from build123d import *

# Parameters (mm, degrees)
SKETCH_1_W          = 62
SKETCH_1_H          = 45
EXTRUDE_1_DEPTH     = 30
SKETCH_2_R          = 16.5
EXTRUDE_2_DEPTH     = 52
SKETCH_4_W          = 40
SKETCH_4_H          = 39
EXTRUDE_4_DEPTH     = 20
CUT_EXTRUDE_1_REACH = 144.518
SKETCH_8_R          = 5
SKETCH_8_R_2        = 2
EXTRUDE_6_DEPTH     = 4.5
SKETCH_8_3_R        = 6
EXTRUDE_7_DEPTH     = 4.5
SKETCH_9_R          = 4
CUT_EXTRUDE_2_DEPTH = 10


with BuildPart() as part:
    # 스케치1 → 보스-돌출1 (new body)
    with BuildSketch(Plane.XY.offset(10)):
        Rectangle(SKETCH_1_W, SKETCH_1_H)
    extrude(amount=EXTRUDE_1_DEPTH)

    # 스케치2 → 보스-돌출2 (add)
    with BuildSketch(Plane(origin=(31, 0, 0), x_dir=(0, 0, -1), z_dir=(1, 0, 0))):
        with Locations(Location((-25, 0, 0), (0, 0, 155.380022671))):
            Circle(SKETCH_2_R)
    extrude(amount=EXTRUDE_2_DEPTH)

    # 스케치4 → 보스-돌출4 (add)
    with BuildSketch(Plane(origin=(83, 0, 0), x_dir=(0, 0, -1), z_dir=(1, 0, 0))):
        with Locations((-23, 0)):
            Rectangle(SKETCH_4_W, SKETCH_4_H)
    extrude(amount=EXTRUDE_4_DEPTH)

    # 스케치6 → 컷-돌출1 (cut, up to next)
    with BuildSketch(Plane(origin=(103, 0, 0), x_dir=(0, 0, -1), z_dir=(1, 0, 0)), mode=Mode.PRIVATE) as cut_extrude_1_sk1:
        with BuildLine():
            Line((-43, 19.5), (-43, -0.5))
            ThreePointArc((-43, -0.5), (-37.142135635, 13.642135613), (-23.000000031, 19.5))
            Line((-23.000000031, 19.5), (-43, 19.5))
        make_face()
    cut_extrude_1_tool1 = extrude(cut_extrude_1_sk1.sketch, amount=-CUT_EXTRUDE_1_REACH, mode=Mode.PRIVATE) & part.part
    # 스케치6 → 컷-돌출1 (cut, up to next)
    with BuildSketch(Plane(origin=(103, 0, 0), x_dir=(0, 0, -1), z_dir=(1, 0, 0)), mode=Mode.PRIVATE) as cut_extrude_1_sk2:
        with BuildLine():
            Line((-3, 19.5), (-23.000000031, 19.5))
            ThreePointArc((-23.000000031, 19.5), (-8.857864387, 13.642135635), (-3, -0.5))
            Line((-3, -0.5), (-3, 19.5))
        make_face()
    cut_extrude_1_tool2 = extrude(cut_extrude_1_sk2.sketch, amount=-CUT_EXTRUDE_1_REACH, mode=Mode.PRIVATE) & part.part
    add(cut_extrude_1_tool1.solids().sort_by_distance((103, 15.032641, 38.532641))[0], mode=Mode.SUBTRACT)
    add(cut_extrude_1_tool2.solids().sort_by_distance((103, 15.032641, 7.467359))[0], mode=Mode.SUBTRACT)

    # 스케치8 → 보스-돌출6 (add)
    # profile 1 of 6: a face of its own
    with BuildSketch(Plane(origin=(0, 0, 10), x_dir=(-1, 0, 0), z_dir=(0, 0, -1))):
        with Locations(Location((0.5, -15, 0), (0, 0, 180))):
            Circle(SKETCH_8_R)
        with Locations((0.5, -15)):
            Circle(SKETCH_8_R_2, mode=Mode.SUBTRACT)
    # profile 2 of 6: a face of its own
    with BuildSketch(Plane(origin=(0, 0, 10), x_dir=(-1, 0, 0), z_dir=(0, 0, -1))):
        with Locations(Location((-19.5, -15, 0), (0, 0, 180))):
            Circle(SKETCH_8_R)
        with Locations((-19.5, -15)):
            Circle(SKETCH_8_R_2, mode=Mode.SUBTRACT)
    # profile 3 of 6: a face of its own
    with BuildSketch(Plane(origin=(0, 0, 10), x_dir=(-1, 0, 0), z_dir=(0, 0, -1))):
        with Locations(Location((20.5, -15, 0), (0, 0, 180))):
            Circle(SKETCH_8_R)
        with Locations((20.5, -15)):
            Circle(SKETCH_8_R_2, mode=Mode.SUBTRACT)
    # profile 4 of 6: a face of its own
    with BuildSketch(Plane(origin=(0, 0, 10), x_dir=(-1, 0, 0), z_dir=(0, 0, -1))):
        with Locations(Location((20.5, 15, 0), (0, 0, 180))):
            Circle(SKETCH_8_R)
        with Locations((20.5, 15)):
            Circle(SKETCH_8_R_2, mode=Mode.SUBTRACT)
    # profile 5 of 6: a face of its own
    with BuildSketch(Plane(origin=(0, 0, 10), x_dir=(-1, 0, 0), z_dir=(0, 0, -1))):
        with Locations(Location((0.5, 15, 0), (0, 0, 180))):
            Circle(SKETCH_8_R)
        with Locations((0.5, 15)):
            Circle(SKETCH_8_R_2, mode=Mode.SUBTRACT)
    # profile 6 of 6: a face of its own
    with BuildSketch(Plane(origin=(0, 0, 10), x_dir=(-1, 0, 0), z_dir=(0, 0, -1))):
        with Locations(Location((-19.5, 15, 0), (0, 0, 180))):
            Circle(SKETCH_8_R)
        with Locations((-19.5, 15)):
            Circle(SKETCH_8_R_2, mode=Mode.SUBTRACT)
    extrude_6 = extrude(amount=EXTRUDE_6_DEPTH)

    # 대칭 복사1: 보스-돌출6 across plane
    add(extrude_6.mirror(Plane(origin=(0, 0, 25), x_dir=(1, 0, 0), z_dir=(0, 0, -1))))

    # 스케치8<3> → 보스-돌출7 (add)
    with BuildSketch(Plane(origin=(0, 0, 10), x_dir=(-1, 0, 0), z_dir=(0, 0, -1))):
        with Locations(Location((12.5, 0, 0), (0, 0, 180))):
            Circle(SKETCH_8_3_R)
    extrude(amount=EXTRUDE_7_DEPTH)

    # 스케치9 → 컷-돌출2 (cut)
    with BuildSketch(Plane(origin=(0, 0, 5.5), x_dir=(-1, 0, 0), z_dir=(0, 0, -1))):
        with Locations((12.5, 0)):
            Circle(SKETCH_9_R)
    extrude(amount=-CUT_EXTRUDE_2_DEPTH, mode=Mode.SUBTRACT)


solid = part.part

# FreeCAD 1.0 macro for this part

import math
import FreeCAD as App
import Part
import Sketcher

V = App.Vector
Q = App.Units.Quantity

doc = App.newDocument("Part")
body = doc.addObject("PartDesign::Body", "Body")

sketch1 = body.newObject("Sketcher::SketchObject", "Sketch")
sketch1.AttachmentSupport = (doc.getObject("XY_Plane"), [""])
sketch1.MapMode = "FlatFace"
sketch1.AttachmentOffset = App.Placement(V(0, 0, 10), App.Rotation())
sketch1.addGeometry([
    Part.LineSegment(V(-31, 22.5, 0), V(-31, -22.5, 0)),
    Part.LineSegment(V(-31, -22.5, 0), V(31, -22.5, 0)),
    Part.LineSegment(V(31, -22.5, 0), V(31, 22.5, 0)),
    Part.LineSegment(V(31, 22.5, 0), V(-31, 22.5, 0)),
], False)
sketch1.addConstraint([
    Sketcher.Constraint("Coincident", 0, 2, 1, 1),
    Sketcher.Constraint("Coincident", 1, 2, 2, 1),
    Sketcher.Constraint("Coincident", 2, 2, 3, 1),
    Sketcher.Constraint("Coincident", 3, 2, 0, 1),
    Sketcher.Constraint("Vertical", 0),
    Sketcher.Constraint("Horizontal", 1),
    Sketcher.Constraint("Vertical", 2),
    Sketcher.Constraint("Horizontal", 3),
    Sketcher.Constraint("Symmetric", 0, 2, 2, 2, -1, 1),
    Sketcher.Constraint("DistanceX", 1, 1, 1, 2, Q("62 mm")),
    Sketcher.Constraint("DistanceY", 0, 2, 0, 1, Q("45 mm")),
])
pad1 = body.newObject("PartDesign::Pad", "Pad")
pad1.Profile = sketch1
pad1.Length = 30

sketch2 = body.newObject("Sketcher::SketchObject", "Sketch001")
sketch2.AttachmentSupport = (doc.getObject("YZ_Plane"), [""])
sketch2.MapMode = "FlatFace"
sketch2.AttachmentOffset = App.Placement(V(0, 0, 31), App.Rotation())
sketch2.addGeometry(Part.Circle(V(0, 25, 0), V(0, 0, 1), 16.5), False)
sketch2.addConstraint([
    Sketcher.Constraint("PointOnObject", 0, 3, -2),
    Sketcher.Constraint("Diameter", 0, Q("33 mm")),
    Sketcher.Constraint("DistanceY", -1, 1, 0, 3, Q("25 mm")),
])
pad2 = body.newObject("PartDesign::Pad", "Pad001")
pad2.Profile = sketch2
pad2.Length = 52

sketch3 = body.newObject("Sketcher::SketchObject", "Sketch002")
sketch3.AttachmentSupport = (doc.getObject("YZ_Plane"), [""])
sketch3.MapMode = "FlatFace"
sketch3.AttachmentOffset = App.Placement(V(0, 0, 83), App.Rotation())
sketch3.addGeometry([
    Part.LineSegment(V(19.5, 43, 0), V(-19.5, 43, 0)),
    Part.LineSegment(V(-19.5, 43, 0), V(-19.5, 3, 0)),
    Part.LineSegment(V(-19.5, 3, 0), V(19.5, 3, 0)),
    Part.LineSegment(V(19.5, 3, 0), V(19.5, 43, 0)),
], False)
sketch3.addConstraint([
    Sketcher.Constraint("Coincident", 0, 2, 1, 1),
    Sketcher.Constraint("Coincident", 1, 2, 2, 1),
    Sketcher.Constraint("Coincident", 2, 2, 3, 1),
    Sketcher.Constraint("Coincident", 3, 2, 0, 1),
    Sketcher.Constraint("Horizontal", 0),
    Sketcher.Constraint("Vertical", 1),
    Sketcher.Constraint("Horizontal", 2),
    Sketcher.Constraint("Vertical", 3),
    Sketcher.Constraint("DistanceX", 0, 2, 0, 1, Q("39 mm")),
    Sketcher.Constraint("DistanceY", 1, 2, 1, 1, Q("40 mm")),
    Sketcher.Constraint("DistanceY", -1, 1, 0, 2, Q("43 mm")),
    Sketcher.Constraint("DistanceX", 0, 2, -1, 1, Q("19.5 mm")),
])
pad3 = body.newObject("PartDesign::Pad", "Pad002")
pad3.Profile = sketch3
pad3.Length = 20

sketch4 = body.newObject("Sketcher::SketchObject", "Sketch003")
sketch4.AttachmentSupport = (doc.getObject("YZ_Plane"), [""])
sketch4.MapMode = "FlatFace"
sketch4.AttachmentOffset = App.Placement(V(0, 0, 103), App.Rotation())
sketch4.addGeometry([
    Part.LineSegment(V(19.5, 43, 0), V(-0.5, 43, 0)),
    Part.ArcOfCircle(Part.Circle(V(-0.5, 23, 0), V(0, 0, 1), 20), math.radians(0), math.radians(90)),
    Part.LineSegment(V(19.5, 23, 0), V(19.5, 43, 0)),
], False)
sketch4.addConstraint([
    Sketcher.Constraint("Tangent", 0, 2, 1, 2),
    Sketcher.Constraint("Tangent", 1, 1, 2, 1),
    Sketcher.Constraint("Coincident", 2, 2, 0, 1),
    Sketcher.Constraint("Horizontal", 0),
    Sketcher.Constraint("Vertical", 2),
    Sketcher.Constraint("Radius", 1, Q("20 mm")),
    Sketcher.Constraint("DistanceY", -1, 1, 1, 3, Q("23 mm")),
    Sketcher.Constraint("DistanceX", 1, 3, -1, 1, Q("0.5 mm")),
])
pocket1 = body.newObject("PartDesign::Pocket", "Pocket")
pocket1.Profile = sketch4
pocket1.Type = "UpToFirst"

sketch5 = body.newObject("Sketcher::SketchObject", "Sketch004")
sketch5.AttachmentSupport = (doc.getObject("YZ_Plane"), [""])
sketch5.MapMode = "FlatFace"
sketch5.AttachmentOffset = App.Placement(V(0, 0, 103), App.Rotation())
sketch5.addGeometry([
    Part.LineSegment(V(19.5, 3, 0), V(19.5, 23, 0)),
    Part.ArcOfCircle(Part.Circle(V(-0.5, 23, 0), V(0, 0, 1), 20), math.radians(-90), math.radians(0)),
    Part.LineSegment(V(-0.5, 3, 0), V(19.5, 3, 0)),
], False)
sketch5.addConstraint([
    Sketcher.Constraint("Tangent", 0, 2, 1, 2),
    Sketcher.Constraint("Tangent", 1, 1, 2, 1),
    Sketcher.Constraint("Coincident", 2, 2, 0, 1),
    Sketcher.Constraint("Vertical", 0),
    Sketcher.Constraint("Horizontal", 2),
    Sketcher.Constraint("Radius", 1, Q("20 mm")),
    Sketcher.Constraint("DistanceY", -1, 1, 1, 3, Q("23 mm")),
    Sketcher.Constraint("DistanceX", 1, 3, -1, 1, Q("0.5 mm")),
])
pocket2 = body.newObject("PartDesign::Pocket", "Pocket001")
pocket2.Profile = sketch5
pocket2.Type = "UpToFirst"

sketch6 = body.newObject("Sketcher::SketchObject", "Sketch005")
sketch6.AttachmentSupport = (doc.getObject("XY_Plane"), [""])
sketch6.MapMode = "FlatFace"
sketch6.AttachmentOffset = App.Placement(V(0, 0, 10), App.Rotation())
sketch6.addGeometry([
    Part.Circle(V(-0.5, -15, 0), V(0, 0, 1), 5),
    Part.Circle(V(-0.5, -15, 0), V(0, 0, 1), 2),
    Part.Circle(V(19.5, -15, 0), V(0, 0, 1), 5),
    Part.Circle(V(19.5, -15, 0), V(0, 0, 1), 2),
    Part.Circle(V(-20.5, -15, 0), V(0, 0, 1), 5),
    Part.Circle(V(-20.5, -15, 0), V(0, 0, 1), 2),
    Part.Circle(V(-20.5, 15, 0), V(0, 0, 1), 5),
    Part.Circle(V(-20.5, 15, 0), V(0, 0, 1), 2),
    Part.Circle(V(-0.5, 15, 0), V(0, 0, 1), 5),
    Part.Circle(V(-0.5, 15, 0), V(0, 0, 1), 2),
    Part.Circle(V(19.5, 15, 0), V(0, 0, 1), 5),
    Part.Circle(V(19.5, 15, 0), V(0, 0, 1), 2),
], False)
sketch6.addConstraint([
    Sketcher.Constraint("Coincident", 1, 3, 0, 3),
    Sketcher.Constraint("Coincident", 3, 3, 2, 3),
    Sketcher.Constraint("Coincident", 5, 3, 4, 3),
    Sketcher.Constraint("Coincident", 7, 3, 6, 3),
    Sketcher.Constraint("Coincident", 9, 3, 8, 3),
    Sketcher.Constraint("Coincident", 11, 3, 10, 3),
    Sketcher.Constraint("Equal", 0, 2),
    Sketcher.Constraint("Equal", 1, 3),
    Sketcher.Constraint("Equal", 2, 4),
    Sketcher.Constraint("Equal", 3, 5),
    Sketcher.Constraint("Equal", 4, 6),
    Sketcher.Constraint("Equal", 5, 7),
    Sketcher.Constraint("Equal", 6, 8),
    Sketcher.Constraint("Equal", 7, 9),
    Sketcher.Constraint("Equal", 8, 10),
    Sketcher.Constraint("Equal", 9, 11),
    Sketcher.Constraint("Symmetric", 4, 3, 6, 3, -1),
    Sketcher.Constraint("Symmetric", 0, 3, 8, 3, -1),
    Sketcher.Constraint("Symmetric", 2, 3, 10, 3, -1),
    Sketcher.Constraint("Horizontal", 1, 3, 2, 3),
    Sketcher.Constraint("Horizontal", 3, 3, 4, 3),
    Sketcher.Constraint("Diameter", 0, Q("10 mm")),
    Sketcher.Constraint("Diameter", 1, Q("4 mm")),
    Sketcher.Constraint("DistanceY", 0, 3, -1, 1, Q("15 mm")),
    Sketcher.Constraint("DistanceX", 0, 3, 2, 3, Q("20 mm")),
    Sketcher.Constraint("DistanceX", 4, 3, 0, 3, Q("20 mm")),
    Sketcher.Constraint("DistanceX", 0, 3, -1, 1, Q("0.5 mm")),
])
pad4 = body.newObject("PartDesign::Pad", "Pad003")
pad4.Profile = sketch6
pad4.Length = 4.5
pad4.Reversed = True
doc.recompute()

datumplane = body.newObject("PartDesign::Plane", "DatumPlane")
datumplane.AttachmentSupport = (doc.getObject("XY_Plane"), [""])
datumplane.MapMode = "FlatFace"
datumplane.AttachmentOffset = App.Placement(V(0, 0, 25), App.Rotation())
mirrored = body.newObject("PartDesign::Mirrored", "Mirrored")
mirrored.Originals = [pad4]
mirrored.MirrorPlane = (datumplane, [""])
body.Tip = mirrored

sketch7 = body.newObject("Sketcher::SketchObject", "Sketch006")
sketch7.AttachmentSupport = (doc.getObject("XY_Plane"), [""])
sketch7.MapMode = "FlatFace"
sketch7.AttachmentOffset = App.Placement(V(0, 0, 10), App.Rotation())
sketch7.addGeometry(Part.Circle(V(-12.5, 0, 0), V(0, 0, 1), 6), False)
sketch7.addConstraint([
    Sketcher.Constraint("PointOnObject", 0, 3, -1),
    Sketcher.Constraint("Diameter", 0, Q("12 mm")),
    Sketcher.Constraint("DistanceX", 0, 3, -1, 1, Q("12.5 mm")),
])
pad5 = body.newObject("PartDesign::Pad", "Pad004")
pad5.Profile = sketch7
pad5.Length = 4.5
pad5.Reversed = True

sketch8 = body.newObject("Sketcher::SketchObject", "Sketch007")
sketch8.AttachmentSupport = (doc.getObject("XY_Plane"), [""])
sketch8.MapMode = "FlatFace"
sketch8.AttachmentOffset = App.Placement(V(0, 0, 5.5), App.Rotation())
sketch8.addGeometry(Part.Circle(V(-12.5, 0, 0), V(0, 0, 1), 4), False)
sketch8.addConstraint([
    Sketcher.Constraint("PointOnObject", 0, 3, -1),
    Sketcher.Constraint("Diameter", 0, Q("8 mm")),
    Sketcher.Constraint("DistanceX", 0, 3, -1, 1, Q("12.5 mm")),
])
pocket3 = body.newObject("PartDesign::Pocket", "Pocket002")
pocket3.Profile = sketch8
pocket3.Length = 10
pocket3.Reversed = True

doc.recompute()
